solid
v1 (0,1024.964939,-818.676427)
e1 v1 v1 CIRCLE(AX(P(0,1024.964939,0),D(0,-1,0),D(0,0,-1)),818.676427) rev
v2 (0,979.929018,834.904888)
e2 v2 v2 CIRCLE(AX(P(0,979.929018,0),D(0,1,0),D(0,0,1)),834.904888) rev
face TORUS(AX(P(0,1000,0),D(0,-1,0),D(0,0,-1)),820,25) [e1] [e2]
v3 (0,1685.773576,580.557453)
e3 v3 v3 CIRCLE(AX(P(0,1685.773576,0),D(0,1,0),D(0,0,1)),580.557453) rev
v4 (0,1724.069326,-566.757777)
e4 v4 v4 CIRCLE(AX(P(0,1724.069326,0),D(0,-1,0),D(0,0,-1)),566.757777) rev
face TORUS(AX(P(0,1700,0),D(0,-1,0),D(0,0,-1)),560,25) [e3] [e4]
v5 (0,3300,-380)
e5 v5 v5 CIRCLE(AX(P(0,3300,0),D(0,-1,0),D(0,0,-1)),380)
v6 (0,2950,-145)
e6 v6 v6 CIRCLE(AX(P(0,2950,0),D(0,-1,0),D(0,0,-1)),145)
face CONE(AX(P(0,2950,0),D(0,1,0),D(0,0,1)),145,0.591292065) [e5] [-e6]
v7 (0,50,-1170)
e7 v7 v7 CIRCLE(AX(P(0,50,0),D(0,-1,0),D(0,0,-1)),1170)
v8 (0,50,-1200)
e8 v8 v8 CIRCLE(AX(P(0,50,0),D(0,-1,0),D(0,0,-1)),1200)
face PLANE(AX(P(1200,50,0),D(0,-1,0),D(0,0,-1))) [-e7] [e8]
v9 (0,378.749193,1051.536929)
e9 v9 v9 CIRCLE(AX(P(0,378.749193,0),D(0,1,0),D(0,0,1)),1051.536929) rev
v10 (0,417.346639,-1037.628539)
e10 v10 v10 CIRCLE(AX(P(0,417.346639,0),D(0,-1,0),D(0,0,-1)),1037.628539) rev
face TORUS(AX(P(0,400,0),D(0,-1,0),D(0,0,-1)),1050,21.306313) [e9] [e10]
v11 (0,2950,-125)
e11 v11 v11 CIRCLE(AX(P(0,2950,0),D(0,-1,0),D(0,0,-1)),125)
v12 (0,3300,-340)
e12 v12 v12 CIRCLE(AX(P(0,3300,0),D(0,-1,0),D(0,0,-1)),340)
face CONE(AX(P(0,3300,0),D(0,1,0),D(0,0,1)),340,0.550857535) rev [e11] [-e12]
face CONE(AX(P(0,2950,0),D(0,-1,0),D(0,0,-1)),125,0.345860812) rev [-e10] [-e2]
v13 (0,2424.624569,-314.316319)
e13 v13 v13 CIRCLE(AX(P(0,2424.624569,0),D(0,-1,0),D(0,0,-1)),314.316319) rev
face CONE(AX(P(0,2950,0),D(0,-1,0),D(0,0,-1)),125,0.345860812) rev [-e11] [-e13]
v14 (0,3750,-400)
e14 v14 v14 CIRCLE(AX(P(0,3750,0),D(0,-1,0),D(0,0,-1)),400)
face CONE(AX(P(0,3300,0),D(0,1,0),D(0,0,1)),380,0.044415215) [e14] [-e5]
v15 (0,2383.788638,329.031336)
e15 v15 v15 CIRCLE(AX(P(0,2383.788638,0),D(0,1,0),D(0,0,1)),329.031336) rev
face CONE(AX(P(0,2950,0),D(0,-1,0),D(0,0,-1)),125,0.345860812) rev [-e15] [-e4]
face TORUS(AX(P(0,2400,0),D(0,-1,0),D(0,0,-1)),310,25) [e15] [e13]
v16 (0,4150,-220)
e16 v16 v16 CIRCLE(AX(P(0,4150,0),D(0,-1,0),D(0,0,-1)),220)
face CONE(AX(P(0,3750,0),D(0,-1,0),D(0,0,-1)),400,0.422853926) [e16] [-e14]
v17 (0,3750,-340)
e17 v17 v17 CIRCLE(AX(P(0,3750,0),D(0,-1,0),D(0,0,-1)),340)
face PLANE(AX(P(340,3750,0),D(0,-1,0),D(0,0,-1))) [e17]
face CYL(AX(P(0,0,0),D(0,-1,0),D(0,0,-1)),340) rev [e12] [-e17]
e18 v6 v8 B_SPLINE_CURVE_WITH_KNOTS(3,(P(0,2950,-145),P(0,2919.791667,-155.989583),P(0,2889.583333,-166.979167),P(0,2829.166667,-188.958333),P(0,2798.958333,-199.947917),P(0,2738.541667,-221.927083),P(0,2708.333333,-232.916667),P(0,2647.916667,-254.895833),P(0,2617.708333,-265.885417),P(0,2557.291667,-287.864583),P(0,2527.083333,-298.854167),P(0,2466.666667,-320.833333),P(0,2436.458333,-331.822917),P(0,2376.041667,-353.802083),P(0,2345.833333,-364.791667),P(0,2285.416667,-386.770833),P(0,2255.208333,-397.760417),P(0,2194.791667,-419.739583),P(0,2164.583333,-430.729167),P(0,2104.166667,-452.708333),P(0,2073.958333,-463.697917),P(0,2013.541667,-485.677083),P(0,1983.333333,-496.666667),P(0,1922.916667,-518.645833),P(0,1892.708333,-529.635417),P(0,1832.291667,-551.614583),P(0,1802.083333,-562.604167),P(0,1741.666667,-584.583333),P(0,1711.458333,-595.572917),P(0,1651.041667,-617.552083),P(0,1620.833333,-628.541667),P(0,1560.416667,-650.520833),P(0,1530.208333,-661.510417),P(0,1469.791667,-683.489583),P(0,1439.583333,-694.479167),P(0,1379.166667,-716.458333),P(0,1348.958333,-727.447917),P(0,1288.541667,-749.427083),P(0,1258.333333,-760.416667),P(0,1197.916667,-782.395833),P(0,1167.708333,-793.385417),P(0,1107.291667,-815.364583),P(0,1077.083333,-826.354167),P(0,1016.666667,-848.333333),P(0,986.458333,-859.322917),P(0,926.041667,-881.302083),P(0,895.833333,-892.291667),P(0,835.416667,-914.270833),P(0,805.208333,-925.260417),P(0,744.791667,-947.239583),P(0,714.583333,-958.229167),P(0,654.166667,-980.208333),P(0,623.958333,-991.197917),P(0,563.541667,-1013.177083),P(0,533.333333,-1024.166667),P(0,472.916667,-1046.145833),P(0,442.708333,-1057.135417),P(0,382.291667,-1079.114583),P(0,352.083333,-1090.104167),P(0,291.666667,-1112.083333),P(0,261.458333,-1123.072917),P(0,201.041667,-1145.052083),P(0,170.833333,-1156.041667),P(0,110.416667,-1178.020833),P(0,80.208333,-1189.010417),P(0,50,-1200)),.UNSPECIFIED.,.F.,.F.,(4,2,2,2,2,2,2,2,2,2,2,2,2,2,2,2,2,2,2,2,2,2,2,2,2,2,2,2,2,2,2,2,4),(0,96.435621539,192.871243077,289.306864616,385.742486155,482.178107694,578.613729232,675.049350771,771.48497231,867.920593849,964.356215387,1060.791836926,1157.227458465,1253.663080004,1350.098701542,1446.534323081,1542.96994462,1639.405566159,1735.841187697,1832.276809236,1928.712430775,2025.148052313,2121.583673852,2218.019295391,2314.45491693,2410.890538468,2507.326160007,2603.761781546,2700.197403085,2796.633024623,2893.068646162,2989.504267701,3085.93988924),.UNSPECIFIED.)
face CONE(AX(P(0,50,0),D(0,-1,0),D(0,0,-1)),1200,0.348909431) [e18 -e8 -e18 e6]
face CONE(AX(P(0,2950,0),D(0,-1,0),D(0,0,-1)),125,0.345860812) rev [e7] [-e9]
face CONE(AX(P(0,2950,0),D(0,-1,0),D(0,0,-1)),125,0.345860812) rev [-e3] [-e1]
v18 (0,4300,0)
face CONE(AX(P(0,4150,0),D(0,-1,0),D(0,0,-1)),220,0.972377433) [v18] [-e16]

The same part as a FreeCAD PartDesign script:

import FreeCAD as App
import Part
import Sketcher
from FreeCAD import Vector

doc = App.newDocument("Part")
params = doc.addObject("Spreadsheet::Sheet", "Params")
for row, (alias, value) in enumerate([
    ("sketch1_width", "340 mm"),
    ("sketch1_width2", "30 mm"),
    ("sketch1_height", "550 mm"),
    ("sketch1_height2", "450 mm"),
    ("revolution_angle", "360 deg"),
    ("sketch2_diameter", "50 mm"),
    ("revolution2_angle", "360 deg"),
], start=1):
    params.set(f"A{row}", alias)
    params.set(f"B{row}", "=" + value)
    params.setAlias(f"B{row}", alias)

body = doc.addObject("PartDesign::Body", "Body")

# Sketch on XY plane
sketch1 = body.newObject("Sketcher::SketchObject", "Sketch")
sketch1.AttachmentSupport = (doc.getObject("XY_Plane"), [""])
sketch1.MapMode = "FlatFace"
sketch1.addGeometry([
    Part.LineSegment(Vector(220, 4150, 0), Vector(0, 4300, 0)),  # 0
    Part.LineSegment(Vector(0, 4300, 0), Vector(0, 3750, 0)),  # 1
    Part.LineSegment(Vector(0, 3750, 0), Vector(340, 3750, 0)),  # 2
    Part.LineSegment(Vector(340, 3750, 0), Vector(340, 3300, 0)),  # 3
    Part.LineSegment(Vector(340, 3300, 0), Vector(125, 2950, 0)),  # 4
    Part.LineSegment(Vector(125, 2950, 0), Vector(1170, 50, 0)),  # 5
    Part.LineSegment(Vector(1170, 50, 0), Vector(1200, 50, 0)),  # 6
    Part.LineSegment(Vector(1200, 50, 0), Vector(145, 2950, 0)),  # 7
    Part.LineSegment(Vector(145, 2950, 0), Vector(380, 3300, 0)),  # 8
    Part.LineSegment(Vector(380, 3300, 0), Vector(400, 3750, 0)),  # 9
    Part.LineSegment(Vector(400, 3750, 0), Vector(220, 4150, 0)),  # 10
], False)
sketch1.addConstraint([
    Sketcher.Constraint("Coincident", 0, 2, 1, 1),
    Sketcher.Constraint("Coincident", 1, 2, 2, 1),
    Sketcher.Constraint("Coincident", 2, 2, 3, 1),
    Sketcher.Constraint("Coincident", 3, 2, 4, 1),
    Sketcher.Constraint("Coincident", 4, 2, 5, 1),
    Sketcher.Constraint("Coincident", 5, 2, 6, 1),
    Sketcher.Constraint("Coincident", 6, 2, 7, 1),
    Sketcher.Constraint("Coincident", 7, 2, 8, 1),
    Sketcher.Constraint("Coincident", 8, 2, 9, 1),
    Sketcher.Constraint("Coincident", 9, 2, 10, 1),
    Sketcher.Constraint("Coincident", 10, 2, 0, 1),
    Sketcher.Constraint("Vertical", 1),
    Sketcher.Constraint("Horizontal", 2),
    Sketcher.Constraint("Vertical", 3),
    Sketcher.Constraint("Horizontal", 6),
    Sketcher.Constraint("PointOnObject", 0, 2, -2),
    Sketcher.Constraint("Horizontal", 4, 2, 7, 2),
    Sketcher.Constraint("Horizontal", 3, 2, 8, 2),
    Sketcher.Constraint("Horizontal", 2, 2, 9, 2),
    Sketcher.Constraint("DistanceX", 2, 1, 2, 2, 340.0),
    Sketcher.Constraint("DistanceX", 6, 1, 6, 2, 30.0),
    Sketcher.Constraint("DistanceY", 1, 2, 1, 1, 550.0),
    Sketcher.Constraint("DistanceY", 3, 2, 3, 1, 450.0),
    Sketcher.Constraint("DistanceY", -1, 1, 0, 2, 4300.0),
    Sketcher.Constraint("DistanceX", -1, 1, 4, 2, 125.0),
    Sketcher.Constraint("DistanceY", -1, 1, 4, 2, 2950.0),
    Sketcher.Constraint("DistanceX", -1, 1, 5, 2, 1170.0),
    Sketcher.Constraint("DistanceY", -1, 1, 5, 2, 50.0),
    Sketcher.Constraint("DistanceX", -1, 1, 7, 2, 145.0),
    Sketcher.Constraint("DistanceX", -1, 1, 8, 2, 380.0),
    Sketcher.Constraint("DistanceX", -1, 1, 9, 2, 400.0),
    Sketcher.Constraint("DistanceX", -1, 1, 10, 2, 220.0),
    Sketcher.Constraint("DistanceY", -1, 1, 10, 2, 4150.0),
])
sketch1.setExpression("Constraints[19]", "Params.sketch1_width")
sketch1.setExpression("Constraints[20]", "Params.sketch1_width2")
sketch1.setExpression("Constraints[21]", "Params.sketch1_height")
sketch1.setExpression("Constraints[22]", "Params.sketch1_height2")
revolution = body.newObject("PartDesign::Revolution", "Revolution")
revolution.Profile = sketch1
revolution.ReferenceAxis = (sketch1, ["V_Axis"])
revolution.setExpression("Angle", "Params.revolution_angle")

# Sketch on XY plane
sketch2 = body.newObject("Sketcher::SketchObject", "Sketch001")
sketch2.AttachmentSupport = (doc.getObject("XY_Plane"), [""])
sketch2.MapMode = "FlatFace"
sketch2.addGeometry([
    Part.Circle(Vector(1050, 400, 0), Vector(0, 0, 1), 21),
    Part.Circle(Vector(820, 1000, 0), Vector(0, 0, 1), 25),
    Part.Circle(Vector(560, 1700, 0), Vector(0, 0, 1), 25),
    Part.Circle(Vector(310, 2400, 0), Vector(0, 0, 1), 25),
], False)
sketch2.addConstraint([
    Sketcher.Constraint("Equal", 1, 2),
    Sketcher.Constraint("Equal", 2, 3),
    Sketcher.Constraint("Diameter", 1, 50.0),
    Sketcher.Constraint("DistanceX", -1, 1, 0, 3, 1050.0),
    Sketcher.Constraint("DistanceY", -1, 1, 0, 3, 400.0),
    Sketcher.Constraint("DistanceX", -1, 1, 1, 3, 820.0),
    Sketcher.Constraint("DistanceY", -1, 1, 1, 3, 1000.0),
    Sketcher.Constraint("DistanceX", -1, 1, 2, 3, 560.0),
    Sketcher.Constraint("DistanceY", -1, 1, 2, 3, 1700.0),
    Sketcher.Constraint("DistanceX", -1, 1, 3, 3, 310.0),
    Sketcher.Constraint("DistanceY", -1, 1, 3, 3, 2400.0),
    Sketcher.Constraint("Diameter", 0, 42.612625),
])
sketch2.setExpression("Constraints[2]", "Params.sketch2_diameter")
revolution2 = body.newObject("PartDesign::Revolution", "Revolution001")
revolution2.Profile = sketch2
revolution2.ReferenceAxis = (sketch2, ["V_Axis"])
revolution2.setExpression("Angle", "Params.revolution2_angle")

doc.recompute()
